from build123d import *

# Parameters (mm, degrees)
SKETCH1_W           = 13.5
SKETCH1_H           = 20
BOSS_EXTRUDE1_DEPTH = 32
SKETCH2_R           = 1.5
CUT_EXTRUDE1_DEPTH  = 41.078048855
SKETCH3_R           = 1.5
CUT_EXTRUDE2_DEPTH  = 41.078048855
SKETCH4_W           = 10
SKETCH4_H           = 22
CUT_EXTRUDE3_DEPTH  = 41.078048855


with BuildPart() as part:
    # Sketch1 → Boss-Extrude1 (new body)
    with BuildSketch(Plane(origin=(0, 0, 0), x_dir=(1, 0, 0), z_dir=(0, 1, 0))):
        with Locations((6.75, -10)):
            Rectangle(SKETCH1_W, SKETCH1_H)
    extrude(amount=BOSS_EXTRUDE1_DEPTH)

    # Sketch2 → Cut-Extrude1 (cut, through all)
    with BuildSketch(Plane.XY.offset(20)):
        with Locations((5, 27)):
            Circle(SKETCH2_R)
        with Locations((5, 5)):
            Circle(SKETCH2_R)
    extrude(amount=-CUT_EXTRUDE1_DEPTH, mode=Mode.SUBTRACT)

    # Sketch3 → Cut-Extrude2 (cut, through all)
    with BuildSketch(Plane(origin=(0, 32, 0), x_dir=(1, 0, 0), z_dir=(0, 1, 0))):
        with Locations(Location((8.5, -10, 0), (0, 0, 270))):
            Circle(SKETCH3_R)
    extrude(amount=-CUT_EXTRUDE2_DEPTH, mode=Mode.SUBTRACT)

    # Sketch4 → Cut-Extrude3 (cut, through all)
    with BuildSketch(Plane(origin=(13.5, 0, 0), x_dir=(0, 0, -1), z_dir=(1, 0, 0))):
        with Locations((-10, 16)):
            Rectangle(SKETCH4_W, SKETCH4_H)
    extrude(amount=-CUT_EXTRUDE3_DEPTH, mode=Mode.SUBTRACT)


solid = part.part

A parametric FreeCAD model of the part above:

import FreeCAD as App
import Part
import Sketcher


def add_polygon(sketch, points):
    """Adds a closed chain of lines whose ends are joined by coincident constraints."""
    first, n = sketch.GeometryCount, len(points)
    for a, b in zip(points, points[1:] + points[:1]):
        sketch.addGeometry(Part.LineSegment(App.Vector(*a, 0), App.Vector(*b, 0)), False)
    for i in range(n):
        sketch.addConstraint(Sketcher.Constraint("Coincident", first + i, 2, first + (i + 1) % n, 1))

doc = App.newDocument("Part")
body = doc.addObject("PartDesign::Body", "Body")

# Sketch on XZ plane
sketch1 = doc.addObject("Sketcher::SketchObject", "Sketch")
body.addObject(sketch1)
sketch1.AttachmentSupport = (doc.XZ_Plane, [""])
sketch1.MapMode = "FlatFace"
add_polygon(sketch1, [(0, 0), (0, 20), (14, 20), (14, 0)])  # lines 0-3
sketch1.addConstraint([
    Sketcher.Constraint("Vertical", 0),
    Sketcher.Constraint("Horizontal", 1),
    Sketcher.Constraint("Vertical", 2),
    Sketcher.Constraint("Horizontal", 3),
    Sketcher.Constraint("Coincident", 3, 2, -1, 1),
    Sketcher.Constraint("DistanceY", 0, 1, 0, 2, 20.0),
    Sketcher.Constraint("DistanceX", 1, 1, 1, 2, 13.5),
])
pad1 = doc.addObject("PartDesign::Pad", "Pad")
body.addObject(pad1)
pad1.Profile = sketch1
pad1.Length = 32
pad1.Reversed = True

# Sketch on XY plane
sketch2 = doc.addObject("Sketcher::SketchObject", "Sketch001")
body.addObject(sketch2)
sketch2.AttachmentSupport = (doc.XY_Plane, [""])
sketch2.MapMode = "FlatFace"
sketch2.AttachmentOffset = App.Placement(App.Vector(0, 0, 20), App.Rotation())
sketch2.addGeometry([
    Part.Circle(App.Vector(5, 27, 0), App.Vector(0, 0, 1), 1.5),
    Part.Circle(App.Vector(5, 5, 0), App.Vector(0, 0, 1), 1.5),
], False)
sketch2.addConstraint([
    Sketcher.Constraint("Equal", 0, 1),
    Sketcher.Constraint("Vertical", 0, 3, 1, 3),
    Sketcher.Constraint("Diameter", 0, 3.0),
    Sketcher.Constraint("DistanceX", -1, 1, 0, 3, 5.0),
    Sketcher.Constraint("DistanceY", -1, 1, 0, 3, 27.0),
    Sketcher.Constraint("DistanceY", -1, 1, 1, 3, 5.0),
])
pocket1 = doc.addObject("PartDesign::Pocket", "Pocket")
body.addObject(pocket1)
pocket1.Profile = sketch2
pocket1.Type = "ThroughAll"

# Sketch on XZ plane
sketch3 = doc.addObject("Sketcher::SketchObject", "Sketch002")
body.addObject(sketch3)
sketch3.AttachmentSupport = (doc.XZ_Plane, [""])
sketch3.MapMode = "FlatFace"
sketch3.AttachmentOffset = App.Placement(App.Vector(0, 0, -32), App.Rotation())
sketch3.addGeometry(Part.Circle(App.Vector(8.5, 10, 0), App.Vector(0, 0, 1), 1.5), False)
sketch3.addConstraint([
    Sketcher.Constraint("Diameter", 0, 3.0),
    Sketcher.Constraint("DistanceY", -1, 1, 0, 3, 10.0),
    Sketcher.Constraint("DistanceX", -1, 1, 0, 3, 8.5),
])
pocket2 = doc.addObject("PartDesign::Pocket", "Pocket001")
body.addObject(pocket2)
pocket2.Profile = sketch3
pocket2.Type = "ThroughAll"
pocket2.Reversed = True

# Sketch on YZ plane
sketch4 = doc.addObject("Sketcher::SketchObject", "Sketch003")
body.addObject(sketch4)
sketch4.AttachmentSupport = (doc.YZ_Plane, [""])
sketch4.MapMode = "FlatFace"
sketch4.AttachmentOffset = App.Placement(App.Vector(0, 0, 13.5), App.Rotation())
add_polygon(sketch4, [(27, 15), (5, 15), (5, 5), (27, 5)])  # lines 0-3
sketch4.addConstraint([
    Sketcher.Constraint("Horizontal", 0),
    Sketcher.Constraint("Vertical", 1),
    Sketcher.Constraint("Horizontal", 2),
    Sketcher.Constraint("Vertical", 3),
    Sketcher.Constraint("DistanceX", 0, 2, 0, 1, 22.0),
    Sketcher.Constraint("DistanceY", 1, 2, 1, 1, 10.0),
    Sketcher.Constraint("DistanceX", -1, 1, 0, 2, 5.0),
    Sketcher.Constraint("DistanceY", -1, 1, 0, 2, 15.0),
])
pocket3 = doc.addObject("PartDesign::Pocket", "Pocket002")
body.addObject(pocket3)
pocket3.Profile = sketch4
pocket3.Type = "ThroughAll"

doc.recompute()
